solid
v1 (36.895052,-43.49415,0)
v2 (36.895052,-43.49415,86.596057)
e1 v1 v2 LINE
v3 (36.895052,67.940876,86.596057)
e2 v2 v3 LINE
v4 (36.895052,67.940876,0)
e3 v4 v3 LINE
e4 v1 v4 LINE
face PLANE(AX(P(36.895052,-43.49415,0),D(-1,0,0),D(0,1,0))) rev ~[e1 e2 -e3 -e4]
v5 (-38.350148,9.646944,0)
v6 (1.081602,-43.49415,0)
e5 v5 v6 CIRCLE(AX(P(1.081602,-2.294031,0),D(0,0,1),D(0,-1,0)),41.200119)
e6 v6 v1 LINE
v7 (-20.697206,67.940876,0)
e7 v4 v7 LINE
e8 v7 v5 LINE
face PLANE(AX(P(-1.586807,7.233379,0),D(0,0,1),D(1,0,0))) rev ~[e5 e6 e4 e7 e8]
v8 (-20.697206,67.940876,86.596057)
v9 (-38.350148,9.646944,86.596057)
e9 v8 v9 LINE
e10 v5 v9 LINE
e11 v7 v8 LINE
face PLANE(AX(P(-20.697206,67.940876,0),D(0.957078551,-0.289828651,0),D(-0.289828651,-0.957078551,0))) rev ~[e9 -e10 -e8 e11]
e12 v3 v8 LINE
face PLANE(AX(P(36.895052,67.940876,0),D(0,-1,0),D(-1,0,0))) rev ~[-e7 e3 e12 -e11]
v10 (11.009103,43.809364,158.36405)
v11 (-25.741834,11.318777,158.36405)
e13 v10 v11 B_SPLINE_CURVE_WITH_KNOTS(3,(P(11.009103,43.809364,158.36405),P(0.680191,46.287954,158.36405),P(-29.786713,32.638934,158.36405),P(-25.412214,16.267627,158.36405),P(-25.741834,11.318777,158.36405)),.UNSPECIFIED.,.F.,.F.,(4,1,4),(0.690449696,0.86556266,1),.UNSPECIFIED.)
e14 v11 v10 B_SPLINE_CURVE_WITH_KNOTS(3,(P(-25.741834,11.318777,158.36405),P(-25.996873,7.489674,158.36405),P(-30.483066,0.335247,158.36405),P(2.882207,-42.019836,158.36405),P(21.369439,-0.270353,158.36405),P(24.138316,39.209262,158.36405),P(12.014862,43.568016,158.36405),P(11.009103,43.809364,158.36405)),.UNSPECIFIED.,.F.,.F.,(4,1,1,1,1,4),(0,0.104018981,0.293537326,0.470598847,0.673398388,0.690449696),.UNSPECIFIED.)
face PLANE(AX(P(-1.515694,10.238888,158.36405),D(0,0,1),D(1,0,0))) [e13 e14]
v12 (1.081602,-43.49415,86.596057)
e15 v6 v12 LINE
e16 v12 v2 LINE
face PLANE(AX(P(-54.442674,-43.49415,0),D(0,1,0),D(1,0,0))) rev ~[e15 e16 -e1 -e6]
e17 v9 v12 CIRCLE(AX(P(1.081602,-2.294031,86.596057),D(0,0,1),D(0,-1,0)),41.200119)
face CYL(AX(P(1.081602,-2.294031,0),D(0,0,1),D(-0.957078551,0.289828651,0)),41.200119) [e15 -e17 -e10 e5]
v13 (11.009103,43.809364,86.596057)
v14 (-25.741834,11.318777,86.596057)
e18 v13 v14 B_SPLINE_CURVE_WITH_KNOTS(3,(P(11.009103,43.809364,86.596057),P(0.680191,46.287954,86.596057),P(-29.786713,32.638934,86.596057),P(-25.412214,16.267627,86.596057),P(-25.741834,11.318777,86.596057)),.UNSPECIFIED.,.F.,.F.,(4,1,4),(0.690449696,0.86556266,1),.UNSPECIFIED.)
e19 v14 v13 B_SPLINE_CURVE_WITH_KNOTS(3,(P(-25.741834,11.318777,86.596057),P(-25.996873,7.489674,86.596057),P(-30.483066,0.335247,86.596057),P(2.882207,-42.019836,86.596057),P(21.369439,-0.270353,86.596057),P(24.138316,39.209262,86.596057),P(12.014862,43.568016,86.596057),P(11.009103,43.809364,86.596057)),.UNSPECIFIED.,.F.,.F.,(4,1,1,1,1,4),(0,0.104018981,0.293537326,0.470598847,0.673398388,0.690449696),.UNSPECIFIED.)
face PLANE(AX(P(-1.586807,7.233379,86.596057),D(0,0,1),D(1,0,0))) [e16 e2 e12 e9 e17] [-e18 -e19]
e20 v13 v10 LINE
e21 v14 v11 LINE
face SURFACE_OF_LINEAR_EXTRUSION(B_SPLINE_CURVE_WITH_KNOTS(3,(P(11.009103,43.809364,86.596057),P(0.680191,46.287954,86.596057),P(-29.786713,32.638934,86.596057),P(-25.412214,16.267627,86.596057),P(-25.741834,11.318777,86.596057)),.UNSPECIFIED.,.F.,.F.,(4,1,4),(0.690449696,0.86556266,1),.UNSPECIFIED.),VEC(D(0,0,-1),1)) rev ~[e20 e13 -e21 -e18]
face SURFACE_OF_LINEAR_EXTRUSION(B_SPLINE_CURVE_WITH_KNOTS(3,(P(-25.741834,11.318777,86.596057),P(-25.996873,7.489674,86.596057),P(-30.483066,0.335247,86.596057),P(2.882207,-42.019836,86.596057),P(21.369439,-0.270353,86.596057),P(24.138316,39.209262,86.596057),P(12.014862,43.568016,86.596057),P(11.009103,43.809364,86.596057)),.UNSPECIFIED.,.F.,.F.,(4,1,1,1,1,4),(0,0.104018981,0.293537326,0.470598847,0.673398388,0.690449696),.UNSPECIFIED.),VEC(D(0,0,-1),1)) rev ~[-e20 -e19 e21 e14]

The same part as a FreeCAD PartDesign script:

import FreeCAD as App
import Part
import Sketcher

V = App.Vector


def edges_at(feature, points):
    """Names of the edges that pass closest to the given points."""
    edges = feature.Shape.Edges
    near = lambda p: min(range(len(edges)), key=lambda i: edges[i].distToShape(Part.Vertex(*p))[0])
    return sorted({f"Edge{near(p) + 1}" for p in points})

doc = App.newDocument("Part")
body = doc.addObject("PartDesign::Body", "Body")

# Sketch on XY plane
sketch1 = body.newObject("Sketcher::SketchObject", "Sketch")
sketch1.AttachmentSupport = (doc.getObject("XY_Plane"), [""])
sketch1.MapMode = "FlatFace"
sketch1.addGeometry([
    Part.LineSegment(V(-20.697206, 67.940876, 0), V(-54.442674, -43.49415, 0)),
    Part.LineSegment(V(-54.442674, -43.49415, 0), V(36.895052, -43.49415, 0)),
    Part.LineSegment(V(36.895052, -43.49415, 0), V(36.895052, 67.940876, 0)),
    Part.LineSegment(V(36.895052, 67.940876, 0), V(-20.697206, 67.940876, 0)),
], False)
sketch1.addConstraint([
    Sketcher.Constraint("Coincident", 0, 2, 1, 1),
    Sketcher.Constraint("Coincident", 1, 2, 2, 1),
    Sketcher.Constraint("Coincident", 2, 2, 3, 1),
    Sketcher.Constraint("Coincident", 3, 2, 0, 1),
    Sketcher.Constraint("Horizontal", 1),
    Sketcher.Constraint("Vertical", 2),
    Sketcher.Constraint("Horizontal", 3),
    Sketcher.Constraint("DistanceX", 1, 1, 1, 2, 91.337726),
    Sketcher.Constraint("DistanceX", 3, 2, 3, 1, 57.592258),
    Sketcher.Constraint("DistanceY", 2, 1, 2, 2, 111.435026),
    Sketcher.Constraint("DistanceY", 0, 2, -1, 1, 43.49415),
    Sketcher.Constraint("DistanceX", -1, 1, 1, 2, 36.895052),
])
pad1 = body.newObject("PartDesign::Pad", "Pad")
pad1.Profile = sketch1
pad1.Length = 86.596057
doc.recompute()

fillet = body.newObject("PartDesign::Fillet", "Fillet")
fillet.Base = (pad1, edges_at(pad1, [(-54.443, -43.494, 43.298)]))
fillet.Radius = 41.200119

# Sketch on XY plane
sketch2 = body.newObject("Sketcher::SketchObject", "Sketch001")
sketch2.AttachmentSupport = (doc.getObject("XY_Plane"), [""])
sketch2.MapMode = "FlatFace"
sketch2.AttachmentOffset = App.Placement(V(0, 0, 86.596057), App.Rotation())
sketch2.addGeometry([
    Part.BSplineCurve([V(11.009103, 43.809364, 0), V(0.680191, 46.287954, 0), V(-29.786713, 32.638934, 0), V(-25.412214, 16.267627, 0), V(-25.741834, 11.318777, 0)], [4, 1, 4], [0.690449696, 0.86556266, 1], False, 3, [1, 1, 1, 1, 1], False),
    Part.BSplineCurve([V(-25.741834, 11.318777, 0), V(-25.996873, 7.489674, 0), V(-30.483066, 0.335247, 0), V(2.882207, -42.019836, 0), V(21.369439, -0.270353, 0), V(24.138316, 39.209262, 0), V(12.014862, 43.568016, 0), V(11.009103, 43.809364, 0)], [4, 1, 1, 1, 1, 4], [0, 0.104018981, 0.293537326, 0.470598847, 0.673398388, 0.690449696], False, 3, [1, 1, 1, 1, 1, 1, 1, 1], False),
], False)
sketch2.addConstraint([
    Sketcher.Constraint("Block", 0),
    Sketcher.Constraint("Block", 1),
])
pad2 = body.newObject("PartDesign::Pad", "Pad001")
pad2.Profile = sketch2
pad2.Length = 71.767993

doc.recompute()
